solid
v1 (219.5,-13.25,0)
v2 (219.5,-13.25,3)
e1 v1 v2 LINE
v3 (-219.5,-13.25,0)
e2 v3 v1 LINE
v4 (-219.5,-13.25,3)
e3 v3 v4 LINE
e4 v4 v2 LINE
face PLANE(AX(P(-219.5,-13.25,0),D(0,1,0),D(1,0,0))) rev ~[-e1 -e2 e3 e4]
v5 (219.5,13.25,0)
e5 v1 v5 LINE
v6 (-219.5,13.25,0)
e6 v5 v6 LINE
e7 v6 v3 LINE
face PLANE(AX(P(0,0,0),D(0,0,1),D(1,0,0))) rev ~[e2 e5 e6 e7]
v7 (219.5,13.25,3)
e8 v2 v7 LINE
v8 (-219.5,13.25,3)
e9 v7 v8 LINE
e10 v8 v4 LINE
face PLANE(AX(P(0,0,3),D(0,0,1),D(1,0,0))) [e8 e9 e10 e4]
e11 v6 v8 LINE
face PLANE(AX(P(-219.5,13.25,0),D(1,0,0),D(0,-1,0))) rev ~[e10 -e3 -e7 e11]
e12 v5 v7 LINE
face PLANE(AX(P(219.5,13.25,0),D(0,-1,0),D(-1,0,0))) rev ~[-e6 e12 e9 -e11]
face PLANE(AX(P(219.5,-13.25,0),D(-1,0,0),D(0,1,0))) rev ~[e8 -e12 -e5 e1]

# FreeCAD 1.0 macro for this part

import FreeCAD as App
import Part
import Sketcher
from FreeCAD import Vector
Q = App.Units.Quantity


def add_polygon(sketch, points):
    """Adds a closed chain of lines whose ends are joined by coincident constraints."""
    first, n = sketch.GeometryCount, len(points)
    for a, b in zip(points, points[1:] + points[:1]):
        sketch.addGeometry(Part.LineSegment(App.Vector(*a, 0), App.Vector(*b, 0)), False)
    for i in range(n):
        sketch.addConstraint(Sketcher.Constraint("Coincident", first + i, 2, first + (i + 1) % n, 1))

doc = App.newDocument("Part")
body = doc.addObject("PartDesign::Body", "Body")

sketch1 = doc.addObject("Sketcher::SketchObject", "Sketch")
body.addObject(sketch1)
sketch1.AttachmentSupport = (doc.XY_Plane, [""])
sketch1.MapMode = "FlatFace"
add_polygon(sketch1, [(-220, 13), (-220, -13), (220, -13), (220, 13)])
sketch1.addConstraint(Sketcher.Constraint("Vertical", 0))
sketch1.addConstraint(Sketcher.Constraint("Horizontal", 1))
sketch1.addConstraint(Sketcher.Constraint("Vertical", 2))
sketch1.addConstraint(Sketcher.Constraint("Horizontal", 3))
sketch1.addConstraint(Sketcher.Constraint("Symmetric", 0, 2, 2, 2, -1, 1))
sketch1.addConstraint(Sketcher.Constraint("DistanceX", 1, 1, 1, 2, Q("439 mm")))
sketch1.addConstraint(Sketcher.Constraint("DistanceY", 0, 2, 0, 1, Q("26.5 mm")))
pad1 = doc.addObject("PartDesign::Pad", "Pad")
body.addObject(pad1)
pad1.Profile = sketch1
pad1.Length = 3

doc.recompute()
